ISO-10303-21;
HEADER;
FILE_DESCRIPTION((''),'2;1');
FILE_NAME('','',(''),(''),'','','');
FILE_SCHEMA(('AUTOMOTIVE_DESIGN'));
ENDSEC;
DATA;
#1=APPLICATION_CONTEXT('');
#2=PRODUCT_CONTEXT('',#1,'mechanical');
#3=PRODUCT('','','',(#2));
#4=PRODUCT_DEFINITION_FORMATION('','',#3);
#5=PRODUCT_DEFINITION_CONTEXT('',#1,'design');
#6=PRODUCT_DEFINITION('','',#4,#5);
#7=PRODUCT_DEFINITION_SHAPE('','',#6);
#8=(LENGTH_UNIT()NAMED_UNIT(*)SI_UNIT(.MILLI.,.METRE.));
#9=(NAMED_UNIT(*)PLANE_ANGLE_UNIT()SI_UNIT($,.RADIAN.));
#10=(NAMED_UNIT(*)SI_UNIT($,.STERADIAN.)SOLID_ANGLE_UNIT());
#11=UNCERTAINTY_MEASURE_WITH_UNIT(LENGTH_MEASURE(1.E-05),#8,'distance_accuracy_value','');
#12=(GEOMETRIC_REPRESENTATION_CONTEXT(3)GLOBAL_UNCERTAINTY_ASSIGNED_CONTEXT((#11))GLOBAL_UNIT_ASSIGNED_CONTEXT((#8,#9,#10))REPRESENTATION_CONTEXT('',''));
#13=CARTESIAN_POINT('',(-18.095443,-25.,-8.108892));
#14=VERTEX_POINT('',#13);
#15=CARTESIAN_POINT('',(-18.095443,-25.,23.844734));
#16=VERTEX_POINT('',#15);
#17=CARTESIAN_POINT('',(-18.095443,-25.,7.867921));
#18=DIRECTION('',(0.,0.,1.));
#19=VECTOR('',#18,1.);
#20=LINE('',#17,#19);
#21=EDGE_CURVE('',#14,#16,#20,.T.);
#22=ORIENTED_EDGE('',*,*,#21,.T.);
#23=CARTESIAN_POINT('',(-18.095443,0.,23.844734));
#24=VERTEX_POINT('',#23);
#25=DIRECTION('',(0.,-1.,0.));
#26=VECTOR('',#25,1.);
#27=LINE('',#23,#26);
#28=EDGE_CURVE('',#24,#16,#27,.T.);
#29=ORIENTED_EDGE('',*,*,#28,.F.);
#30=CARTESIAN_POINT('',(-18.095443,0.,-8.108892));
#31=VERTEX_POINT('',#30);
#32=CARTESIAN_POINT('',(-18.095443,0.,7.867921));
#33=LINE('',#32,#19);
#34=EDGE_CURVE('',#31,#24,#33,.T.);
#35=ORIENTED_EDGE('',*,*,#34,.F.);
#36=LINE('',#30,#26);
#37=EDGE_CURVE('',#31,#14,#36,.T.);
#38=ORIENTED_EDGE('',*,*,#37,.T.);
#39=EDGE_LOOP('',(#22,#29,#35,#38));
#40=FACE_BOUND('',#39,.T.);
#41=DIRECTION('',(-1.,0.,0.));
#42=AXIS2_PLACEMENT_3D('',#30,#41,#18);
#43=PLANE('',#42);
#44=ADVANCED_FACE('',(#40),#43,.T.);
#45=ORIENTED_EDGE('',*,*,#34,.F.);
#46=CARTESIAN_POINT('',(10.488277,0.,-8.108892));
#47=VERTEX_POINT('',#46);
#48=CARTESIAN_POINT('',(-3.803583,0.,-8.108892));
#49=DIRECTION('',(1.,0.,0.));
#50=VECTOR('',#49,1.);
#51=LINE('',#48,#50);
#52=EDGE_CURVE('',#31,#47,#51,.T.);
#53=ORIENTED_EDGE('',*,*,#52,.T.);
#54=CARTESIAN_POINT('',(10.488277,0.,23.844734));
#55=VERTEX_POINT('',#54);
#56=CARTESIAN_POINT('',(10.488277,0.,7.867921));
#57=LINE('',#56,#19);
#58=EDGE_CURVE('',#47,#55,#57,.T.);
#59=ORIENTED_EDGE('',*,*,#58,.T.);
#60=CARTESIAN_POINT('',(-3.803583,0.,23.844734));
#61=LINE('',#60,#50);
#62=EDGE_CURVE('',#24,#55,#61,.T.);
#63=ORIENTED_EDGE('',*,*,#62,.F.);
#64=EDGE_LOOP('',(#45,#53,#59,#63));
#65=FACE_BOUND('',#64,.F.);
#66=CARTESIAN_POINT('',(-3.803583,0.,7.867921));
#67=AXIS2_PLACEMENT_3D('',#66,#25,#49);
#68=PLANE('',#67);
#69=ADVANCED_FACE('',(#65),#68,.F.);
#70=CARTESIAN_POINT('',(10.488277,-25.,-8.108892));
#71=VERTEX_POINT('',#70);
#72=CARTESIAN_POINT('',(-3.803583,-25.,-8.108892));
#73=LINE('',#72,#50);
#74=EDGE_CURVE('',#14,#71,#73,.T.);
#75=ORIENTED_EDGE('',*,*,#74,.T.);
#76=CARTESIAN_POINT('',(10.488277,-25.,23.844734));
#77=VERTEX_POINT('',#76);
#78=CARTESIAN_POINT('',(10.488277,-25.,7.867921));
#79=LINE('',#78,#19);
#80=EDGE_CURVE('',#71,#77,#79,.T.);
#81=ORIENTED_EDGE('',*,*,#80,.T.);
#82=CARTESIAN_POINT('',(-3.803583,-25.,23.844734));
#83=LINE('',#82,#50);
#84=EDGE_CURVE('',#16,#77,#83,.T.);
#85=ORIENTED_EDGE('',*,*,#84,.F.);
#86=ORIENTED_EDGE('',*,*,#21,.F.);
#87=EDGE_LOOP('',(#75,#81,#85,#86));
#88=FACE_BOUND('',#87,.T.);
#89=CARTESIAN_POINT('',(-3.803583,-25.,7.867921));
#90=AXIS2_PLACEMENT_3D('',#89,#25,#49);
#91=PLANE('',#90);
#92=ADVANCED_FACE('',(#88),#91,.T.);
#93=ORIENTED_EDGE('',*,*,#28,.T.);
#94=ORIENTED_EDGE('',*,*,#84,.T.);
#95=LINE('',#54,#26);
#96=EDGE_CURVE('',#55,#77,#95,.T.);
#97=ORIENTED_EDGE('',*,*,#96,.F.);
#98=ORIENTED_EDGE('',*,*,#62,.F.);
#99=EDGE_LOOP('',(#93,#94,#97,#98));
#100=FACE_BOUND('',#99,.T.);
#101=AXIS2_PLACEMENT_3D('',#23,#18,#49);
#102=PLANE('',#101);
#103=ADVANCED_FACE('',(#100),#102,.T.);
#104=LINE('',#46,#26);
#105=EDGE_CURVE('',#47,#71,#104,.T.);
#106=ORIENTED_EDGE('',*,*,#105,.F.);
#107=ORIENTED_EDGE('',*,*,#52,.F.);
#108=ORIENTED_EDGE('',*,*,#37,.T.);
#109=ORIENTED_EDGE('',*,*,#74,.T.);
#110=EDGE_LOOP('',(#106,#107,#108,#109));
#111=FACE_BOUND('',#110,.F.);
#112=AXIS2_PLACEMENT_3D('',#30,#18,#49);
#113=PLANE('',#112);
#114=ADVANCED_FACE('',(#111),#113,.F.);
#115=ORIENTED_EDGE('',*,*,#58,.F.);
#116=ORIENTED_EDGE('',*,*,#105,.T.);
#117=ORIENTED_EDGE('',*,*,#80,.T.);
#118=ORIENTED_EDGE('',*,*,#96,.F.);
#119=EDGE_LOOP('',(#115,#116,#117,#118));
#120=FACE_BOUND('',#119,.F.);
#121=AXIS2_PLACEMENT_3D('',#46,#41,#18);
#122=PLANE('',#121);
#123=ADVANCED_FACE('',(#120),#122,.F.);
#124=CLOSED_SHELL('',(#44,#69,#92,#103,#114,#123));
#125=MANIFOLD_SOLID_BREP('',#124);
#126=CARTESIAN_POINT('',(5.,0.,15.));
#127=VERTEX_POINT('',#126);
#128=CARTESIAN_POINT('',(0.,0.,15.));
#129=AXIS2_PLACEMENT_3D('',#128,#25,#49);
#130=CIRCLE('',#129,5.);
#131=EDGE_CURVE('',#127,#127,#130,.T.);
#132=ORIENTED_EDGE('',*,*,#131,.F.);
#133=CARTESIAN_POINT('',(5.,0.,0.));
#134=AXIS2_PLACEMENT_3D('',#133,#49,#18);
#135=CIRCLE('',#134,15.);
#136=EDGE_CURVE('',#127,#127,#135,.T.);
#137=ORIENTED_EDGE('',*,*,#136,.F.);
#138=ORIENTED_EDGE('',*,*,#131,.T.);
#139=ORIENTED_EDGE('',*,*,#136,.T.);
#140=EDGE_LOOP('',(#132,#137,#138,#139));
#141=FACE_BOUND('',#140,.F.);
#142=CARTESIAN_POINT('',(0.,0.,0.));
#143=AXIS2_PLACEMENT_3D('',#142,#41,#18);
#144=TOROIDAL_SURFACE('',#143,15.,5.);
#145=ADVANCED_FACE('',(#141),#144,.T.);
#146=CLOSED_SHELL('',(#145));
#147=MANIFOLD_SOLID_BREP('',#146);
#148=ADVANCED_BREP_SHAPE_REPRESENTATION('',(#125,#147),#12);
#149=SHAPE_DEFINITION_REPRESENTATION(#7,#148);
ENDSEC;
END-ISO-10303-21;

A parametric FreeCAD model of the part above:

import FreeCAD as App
import Part
import Sketcher

V = App.Vector
Q = App.Units.Quantity


def add_polygon(sketch, points):
    """Adds a closed chain of lines whose ends are joined by coincident constraints."""
    first, n = sketch.GeometryCount, len(points)
    for a, b in zip(points, points[1:] + points[:1]):
        sketch.addGeometry(Part.LineSegment(App.Vector(*a, 0), App.Vector(*b, 0)), False)
    for i in range(n):
        sketch.addConstraint(Sketcher.Constraint("Coincident", first + i, 2, first + (i + 1) % n, 1))

doc = App.newDocument("Part")
params = doc.addObject("Spreadsheet::Sheet", "Params")
for row, (alias, value) in enumerate([
    ("sketch1_diameter", "10 mm"),
    ("revolution_angle", "360 deg"),
    ("pad1_length", "25 mm"),
], start=1):
    params.set(f"A{row}", alias)
    params.set(f"B{row}", "=" + value)
    params.setAlias(f"B{row}", alias)

body = doc.addObject("PartDesign::Body", "Body")

# Sketch on XZ plane
sketch1 = body.newObject("Sketcher::SketchObject", "Sketch")
sketch1.AttachmentSupport = (doc.getObject("XZ_Plane"), [""])
sketch1.MapMode = "FlatFace"
sketch1.addGeometry(Part.Circle(V(0, 15, 0), V(0, 0, 1), 5), False)
sketch1.addConstraint([
    Sketcher.Constraint("PointOnObject", 0, 3, -2),
    Sketcher.Constraint("Diameter", 0, Q("10 mm")),
    Sketcher.Constraint("DistanceY", -1, 1, 0, 3, Q("15 mm")),
])
sketch1.setExpression("Constraints[1]", "Params.sketch1_diameter")
revolution = body.newObject("PartDesign::Revolution", "Revolution")
revolution.Profile = sketch1
revolution.ReferenceAxis = (sketch1, ["H_Axis"])
revolution.setExpression("Angle", "Params.revolution_angle")
body2 = doc.addObject("PartDesign::Body", "Body001")

# Sketch on XZ plane
sketch2 = body2.newObject("Sketcher::SketchObject", "Sketch001")
sketch2.AttachmentSupport = (doc.getObject("XZ_Plane001"), [""])
sketch2.MapMode = "FlatFace"
add_polygon(sketch2, [(-18.095443, 23.844734), (-18.095443, -8.108892), (10.488277, -8.108892), (10.488277, 23.844734)])  # lines 0-3
sketch2.addConstraint([
    Sketcher.Constraint("Vertical", 0),
    Sketcher.Constraint("Horizontal", 1),
    Sketcher.Constraint("Vertical", 2),
    Sketcher.Constraint("Horizontal", 3),
    Sketcher.Constraint("DistanceX", 1, 1, 1, 2, Q("28.58372 mm")),
    Sketcher.Constraint("DistanceY", 0, 2, 0, 1, Q("31.953626 mm")),
    Sketcher.Constraint("DistanceX", 0, 2, -1, 1, Q("18.095443 mm")),
    Sketcher.Constraint("DistanceY", 0, 2, -1, 1, Q("8.108892 mm")),
])
pad1 = body2.newObject("PartDesign::Pad", "Pad")
pad1.Profile = sketch2
pad1.setExpression("Length", "Params.pad1_length")

doc.recompute()
